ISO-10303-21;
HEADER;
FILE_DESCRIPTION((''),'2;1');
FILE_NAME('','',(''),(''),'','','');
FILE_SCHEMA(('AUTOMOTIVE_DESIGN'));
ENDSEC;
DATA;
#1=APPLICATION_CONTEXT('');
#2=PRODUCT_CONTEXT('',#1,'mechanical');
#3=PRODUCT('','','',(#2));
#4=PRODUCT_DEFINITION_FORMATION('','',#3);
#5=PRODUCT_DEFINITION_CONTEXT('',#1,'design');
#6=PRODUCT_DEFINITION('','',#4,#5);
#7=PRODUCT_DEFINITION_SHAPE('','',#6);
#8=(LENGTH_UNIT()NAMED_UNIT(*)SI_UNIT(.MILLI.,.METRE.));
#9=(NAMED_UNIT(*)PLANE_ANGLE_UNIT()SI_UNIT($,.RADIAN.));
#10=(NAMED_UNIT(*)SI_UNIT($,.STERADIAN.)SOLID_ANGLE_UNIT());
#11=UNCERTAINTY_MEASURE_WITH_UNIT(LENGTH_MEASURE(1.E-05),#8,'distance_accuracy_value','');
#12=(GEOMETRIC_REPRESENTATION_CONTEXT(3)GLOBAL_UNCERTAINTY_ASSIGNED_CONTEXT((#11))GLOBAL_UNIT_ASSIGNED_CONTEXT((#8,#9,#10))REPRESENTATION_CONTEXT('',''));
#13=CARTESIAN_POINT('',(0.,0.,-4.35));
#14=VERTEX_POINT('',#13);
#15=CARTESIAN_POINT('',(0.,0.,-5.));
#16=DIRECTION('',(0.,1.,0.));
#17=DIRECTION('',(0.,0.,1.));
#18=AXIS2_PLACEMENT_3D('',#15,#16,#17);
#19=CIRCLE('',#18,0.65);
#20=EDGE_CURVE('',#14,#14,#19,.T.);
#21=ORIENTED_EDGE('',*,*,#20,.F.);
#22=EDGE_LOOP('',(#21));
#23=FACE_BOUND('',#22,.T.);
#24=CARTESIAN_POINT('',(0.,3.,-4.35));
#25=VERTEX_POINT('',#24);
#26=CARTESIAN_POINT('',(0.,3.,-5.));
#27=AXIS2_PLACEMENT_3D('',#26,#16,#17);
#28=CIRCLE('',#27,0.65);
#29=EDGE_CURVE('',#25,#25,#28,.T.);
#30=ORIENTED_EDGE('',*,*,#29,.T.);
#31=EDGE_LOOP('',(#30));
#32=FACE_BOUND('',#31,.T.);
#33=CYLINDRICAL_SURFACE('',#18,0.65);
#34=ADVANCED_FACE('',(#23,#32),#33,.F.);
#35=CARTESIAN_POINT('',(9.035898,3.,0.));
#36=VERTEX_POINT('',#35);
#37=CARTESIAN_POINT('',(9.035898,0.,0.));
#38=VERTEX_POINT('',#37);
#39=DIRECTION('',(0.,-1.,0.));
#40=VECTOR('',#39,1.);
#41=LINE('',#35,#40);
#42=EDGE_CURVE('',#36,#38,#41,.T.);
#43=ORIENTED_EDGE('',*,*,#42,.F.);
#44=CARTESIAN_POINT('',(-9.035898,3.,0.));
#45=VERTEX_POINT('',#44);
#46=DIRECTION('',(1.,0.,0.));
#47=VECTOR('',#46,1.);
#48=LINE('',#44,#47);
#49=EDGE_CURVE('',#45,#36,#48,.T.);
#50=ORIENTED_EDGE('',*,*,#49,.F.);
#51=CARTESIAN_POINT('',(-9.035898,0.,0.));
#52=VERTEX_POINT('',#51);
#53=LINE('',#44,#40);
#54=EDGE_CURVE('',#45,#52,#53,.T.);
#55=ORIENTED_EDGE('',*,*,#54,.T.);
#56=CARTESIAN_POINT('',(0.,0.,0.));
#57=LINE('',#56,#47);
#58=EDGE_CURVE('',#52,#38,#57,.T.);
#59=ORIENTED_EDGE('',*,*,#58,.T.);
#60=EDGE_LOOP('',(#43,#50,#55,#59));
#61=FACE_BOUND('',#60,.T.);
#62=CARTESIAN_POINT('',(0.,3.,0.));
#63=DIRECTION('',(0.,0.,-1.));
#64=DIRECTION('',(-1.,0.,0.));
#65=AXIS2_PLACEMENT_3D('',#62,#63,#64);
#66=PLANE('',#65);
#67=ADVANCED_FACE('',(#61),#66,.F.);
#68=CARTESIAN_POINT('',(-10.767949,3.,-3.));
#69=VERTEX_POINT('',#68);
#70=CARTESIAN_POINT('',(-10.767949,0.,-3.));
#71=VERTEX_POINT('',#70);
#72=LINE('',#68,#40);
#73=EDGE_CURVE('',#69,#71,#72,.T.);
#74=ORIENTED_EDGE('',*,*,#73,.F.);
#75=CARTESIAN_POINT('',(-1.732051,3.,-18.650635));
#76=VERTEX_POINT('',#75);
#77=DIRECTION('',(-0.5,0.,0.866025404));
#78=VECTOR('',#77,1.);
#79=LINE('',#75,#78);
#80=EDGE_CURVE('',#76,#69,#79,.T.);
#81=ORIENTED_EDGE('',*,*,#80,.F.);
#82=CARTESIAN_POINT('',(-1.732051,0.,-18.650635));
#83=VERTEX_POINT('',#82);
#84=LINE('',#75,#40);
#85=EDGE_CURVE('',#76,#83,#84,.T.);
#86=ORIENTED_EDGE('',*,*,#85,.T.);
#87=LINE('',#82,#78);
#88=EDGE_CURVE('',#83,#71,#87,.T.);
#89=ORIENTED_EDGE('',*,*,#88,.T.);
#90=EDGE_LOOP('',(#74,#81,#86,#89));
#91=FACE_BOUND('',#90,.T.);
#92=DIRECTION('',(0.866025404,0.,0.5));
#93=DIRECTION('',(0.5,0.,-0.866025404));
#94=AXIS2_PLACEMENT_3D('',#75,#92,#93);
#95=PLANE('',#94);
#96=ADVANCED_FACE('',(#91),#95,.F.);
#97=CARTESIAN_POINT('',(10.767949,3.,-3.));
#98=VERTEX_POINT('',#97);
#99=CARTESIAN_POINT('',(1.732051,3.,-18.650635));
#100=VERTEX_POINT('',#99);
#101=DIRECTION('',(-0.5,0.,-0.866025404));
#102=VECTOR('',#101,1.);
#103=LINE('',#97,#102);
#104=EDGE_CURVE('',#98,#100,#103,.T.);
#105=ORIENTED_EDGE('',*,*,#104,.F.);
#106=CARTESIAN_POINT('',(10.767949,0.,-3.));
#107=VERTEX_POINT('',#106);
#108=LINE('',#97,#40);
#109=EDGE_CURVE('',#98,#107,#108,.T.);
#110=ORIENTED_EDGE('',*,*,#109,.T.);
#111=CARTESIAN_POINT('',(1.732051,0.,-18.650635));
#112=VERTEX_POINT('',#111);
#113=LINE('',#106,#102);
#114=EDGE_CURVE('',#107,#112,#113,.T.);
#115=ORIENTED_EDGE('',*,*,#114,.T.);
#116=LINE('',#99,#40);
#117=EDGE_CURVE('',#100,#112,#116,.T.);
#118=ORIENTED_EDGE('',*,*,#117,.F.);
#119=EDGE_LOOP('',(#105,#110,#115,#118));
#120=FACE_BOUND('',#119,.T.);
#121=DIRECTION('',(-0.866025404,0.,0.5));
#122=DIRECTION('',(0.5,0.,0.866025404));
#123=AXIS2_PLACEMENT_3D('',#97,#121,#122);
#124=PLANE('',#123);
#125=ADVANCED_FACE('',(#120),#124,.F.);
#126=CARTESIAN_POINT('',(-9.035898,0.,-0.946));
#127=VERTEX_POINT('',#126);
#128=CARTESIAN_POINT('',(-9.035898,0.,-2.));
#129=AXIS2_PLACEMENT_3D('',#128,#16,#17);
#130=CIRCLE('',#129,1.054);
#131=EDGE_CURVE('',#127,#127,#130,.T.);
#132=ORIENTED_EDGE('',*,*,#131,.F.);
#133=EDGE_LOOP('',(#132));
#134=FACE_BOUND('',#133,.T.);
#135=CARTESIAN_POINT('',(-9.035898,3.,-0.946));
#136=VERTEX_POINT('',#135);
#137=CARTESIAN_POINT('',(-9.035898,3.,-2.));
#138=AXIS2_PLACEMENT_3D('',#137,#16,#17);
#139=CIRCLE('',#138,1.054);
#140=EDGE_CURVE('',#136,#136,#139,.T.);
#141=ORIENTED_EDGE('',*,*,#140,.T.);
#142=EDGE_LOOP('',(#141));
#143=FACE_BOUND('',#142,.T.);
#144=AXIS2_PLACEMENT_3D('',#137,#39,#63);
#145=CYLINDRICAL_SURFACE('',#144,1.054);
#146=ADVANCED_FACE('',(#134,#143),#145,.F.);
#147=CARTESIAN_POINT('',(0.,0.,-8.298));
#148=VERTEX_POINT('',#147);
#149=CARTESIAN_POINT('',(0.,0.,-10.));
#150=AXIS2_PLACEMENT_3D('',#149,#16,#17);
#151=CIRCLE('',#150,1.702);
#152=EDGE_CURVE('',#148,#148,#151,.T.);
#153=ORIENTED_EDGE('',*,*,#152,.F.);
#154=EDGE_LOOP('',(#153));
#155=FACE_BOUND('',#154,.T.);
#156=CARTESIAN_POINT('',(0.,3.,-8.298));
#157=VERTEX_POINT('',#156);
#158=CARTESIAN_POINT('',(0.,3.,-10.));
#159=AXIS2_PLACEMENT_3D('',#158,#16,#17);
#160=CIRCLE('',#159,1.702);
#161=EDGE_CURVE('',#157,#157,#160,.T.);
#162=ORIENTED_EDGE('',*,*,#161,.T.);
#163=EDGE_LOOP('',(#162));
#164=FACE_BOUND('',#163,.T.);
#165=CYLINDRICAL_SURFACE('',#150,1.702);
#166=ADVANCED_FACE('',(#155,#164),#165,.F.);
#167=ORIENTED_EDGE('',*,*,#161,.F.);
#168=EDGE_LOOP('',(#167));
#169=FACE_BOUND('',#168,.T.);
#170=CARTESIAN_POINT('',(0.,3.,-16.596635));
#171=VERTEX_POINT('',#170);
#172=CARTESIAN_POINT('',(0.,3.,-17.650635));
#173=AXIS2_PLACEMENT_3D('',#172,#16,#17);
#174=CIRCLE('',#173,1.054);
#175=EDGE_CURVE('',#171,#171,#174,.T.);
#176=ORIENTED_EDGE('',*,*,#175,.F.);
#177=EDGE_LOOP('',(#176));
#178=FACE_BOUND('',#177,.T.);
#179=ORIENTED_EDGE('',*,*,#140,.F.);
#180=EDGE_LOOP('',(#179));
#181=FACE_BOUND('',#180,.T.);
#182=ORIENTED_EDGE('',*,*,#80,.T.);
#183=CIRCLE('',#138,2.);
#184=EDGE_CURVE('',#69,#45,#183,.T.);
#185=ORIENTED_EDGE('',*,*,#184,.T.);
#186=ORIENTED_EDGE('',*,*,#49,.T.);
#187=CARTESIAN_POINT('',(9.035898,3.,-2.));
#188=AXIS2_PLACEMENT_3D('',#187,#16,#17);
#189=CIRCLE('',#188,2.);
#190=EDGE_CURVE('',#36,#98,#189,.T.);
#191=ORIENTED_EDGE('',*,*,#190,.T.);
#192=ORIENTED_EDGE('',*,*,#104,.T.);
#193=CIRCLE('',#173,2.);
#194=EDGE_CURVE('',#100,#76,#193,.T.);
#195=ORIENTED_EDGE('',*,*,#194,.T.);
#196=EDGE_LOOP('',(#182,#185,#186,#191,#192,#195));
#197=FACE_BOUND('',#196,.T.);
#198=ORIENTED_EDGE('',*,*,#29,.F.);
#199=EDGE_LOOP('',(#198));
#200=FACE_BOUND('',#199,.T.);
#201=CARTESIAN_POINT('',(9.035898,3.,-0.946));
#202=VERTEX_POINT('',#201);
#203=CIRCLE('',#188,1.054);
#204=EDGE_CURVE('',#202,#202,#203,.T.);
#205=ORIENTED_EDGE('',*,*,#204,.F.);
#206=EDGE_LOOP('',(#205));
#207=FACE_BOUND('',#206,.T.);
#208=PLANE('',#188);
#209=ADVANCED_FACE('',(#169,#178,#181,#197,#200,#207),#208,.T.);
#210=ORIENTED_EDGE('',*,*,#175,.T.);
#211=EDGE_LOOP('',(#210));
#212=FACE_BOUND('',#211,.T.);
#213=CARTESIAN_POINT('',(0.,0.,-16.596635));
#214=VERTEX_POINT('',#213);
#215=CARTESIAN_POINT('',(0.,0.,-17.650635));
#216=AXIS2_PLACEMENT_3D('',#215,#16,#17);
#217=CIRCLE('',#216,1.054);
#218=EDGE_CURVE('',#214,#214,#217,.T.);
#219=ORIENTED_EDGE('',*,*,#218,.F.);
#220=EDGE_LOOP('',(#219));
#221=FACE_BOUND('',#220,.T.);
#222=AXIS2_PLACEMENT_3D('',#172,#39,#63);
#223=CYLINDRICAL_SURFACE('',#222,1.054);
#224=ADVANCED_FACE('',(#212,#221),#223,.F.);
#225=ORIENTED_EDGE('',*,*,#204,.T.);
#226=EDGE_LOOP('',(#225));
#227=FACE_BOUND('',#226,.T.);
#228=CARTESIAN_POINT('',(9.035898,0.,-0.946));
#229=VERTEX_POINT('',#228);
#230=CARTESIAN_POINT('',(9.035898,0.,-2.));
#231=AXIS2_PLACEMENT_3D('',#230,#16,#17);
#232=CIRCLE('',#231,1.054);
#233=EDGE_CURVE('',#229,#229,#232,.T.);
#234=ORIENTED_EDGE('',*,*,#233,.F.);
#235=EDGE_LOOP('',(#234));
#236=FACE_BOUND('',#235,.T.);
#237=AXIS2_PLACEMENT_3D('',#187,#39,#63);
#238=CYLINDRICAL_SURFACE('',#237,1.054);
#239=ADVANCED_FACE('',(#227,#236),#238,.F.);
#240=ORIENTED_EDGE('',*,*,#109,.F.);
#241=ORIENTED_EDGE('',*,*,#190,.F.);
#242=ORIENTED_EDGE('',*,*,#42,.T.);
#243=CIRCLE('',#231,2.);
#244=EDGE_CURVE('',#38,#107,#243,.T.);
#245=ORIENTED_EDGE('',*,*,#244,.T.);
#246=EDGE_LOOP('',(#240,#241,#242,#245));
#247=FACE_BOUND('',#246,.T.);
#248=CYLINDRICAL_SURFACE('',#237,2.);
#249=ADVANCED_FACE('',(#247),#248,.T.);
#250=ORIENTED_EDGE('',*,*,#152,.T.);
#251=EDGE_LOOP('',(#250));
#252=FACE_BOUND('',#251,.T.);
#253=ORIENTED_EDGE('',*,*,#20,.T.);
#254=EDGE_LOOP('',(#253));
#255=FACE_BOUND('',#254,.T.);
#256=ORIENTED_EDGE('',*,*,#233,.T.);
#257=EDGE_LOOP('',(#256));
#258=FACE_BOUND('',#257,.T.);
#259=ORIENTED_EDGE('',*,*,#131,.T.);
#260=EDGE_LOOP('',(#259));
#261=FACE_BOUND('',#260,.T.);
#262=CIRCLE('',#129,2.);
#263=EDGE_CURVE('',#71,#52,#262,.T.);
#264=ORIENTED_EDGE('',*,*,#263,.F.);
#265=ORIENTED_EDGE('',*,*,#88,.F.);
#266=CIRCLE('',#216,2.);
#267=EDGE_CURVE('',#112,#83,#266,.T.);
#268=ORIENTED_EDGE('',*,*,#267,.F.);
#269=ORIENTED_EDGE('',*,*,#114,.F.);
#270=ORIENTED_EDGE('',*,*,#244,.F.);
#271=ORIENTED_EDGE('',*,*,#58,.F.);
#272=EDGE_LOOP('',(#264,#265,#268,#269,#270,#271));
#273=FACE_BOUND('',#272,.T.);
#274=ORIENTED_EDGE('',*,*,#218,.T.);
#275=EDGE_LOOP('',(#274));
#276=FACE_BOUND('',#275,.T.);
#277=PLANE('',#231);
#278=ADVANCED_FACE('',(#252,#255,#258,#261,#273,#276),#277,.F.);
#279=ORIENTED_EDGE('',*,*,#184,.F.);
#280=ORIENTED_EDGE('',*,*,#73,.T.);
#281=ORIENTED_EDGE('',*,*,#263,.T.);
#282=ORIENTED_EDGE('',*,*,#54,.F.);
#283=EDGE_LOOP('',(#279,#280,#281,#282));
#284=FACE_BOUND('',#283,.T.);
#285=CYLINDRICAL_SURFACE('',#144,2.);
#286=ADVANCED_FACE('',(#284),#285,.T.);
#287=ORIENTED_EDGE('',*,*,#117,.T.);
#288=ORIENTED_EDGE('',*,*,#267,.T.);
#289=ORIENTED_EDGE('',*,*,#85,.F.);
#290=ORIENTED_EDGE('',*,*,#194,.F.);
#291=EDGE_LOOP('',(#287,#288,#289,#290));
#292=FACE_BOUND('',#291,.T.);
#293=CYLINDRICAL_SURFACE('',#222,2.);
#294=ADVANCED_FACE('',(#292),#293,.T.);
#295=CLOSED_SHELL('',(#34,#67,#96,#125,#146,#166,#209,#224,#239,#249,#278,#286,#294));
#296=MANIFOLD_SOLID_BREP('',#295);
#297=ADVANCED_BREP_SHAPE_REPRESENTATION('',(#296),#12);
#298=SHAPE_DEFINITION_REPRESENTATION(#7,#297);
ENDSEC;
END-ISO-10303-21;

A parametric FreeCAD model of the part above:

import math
import FreeCAD as App
import Part
import Sketcher

V = App.Vector
Q = App.Units.Quantity

doc = App.newDocument("Part")
body = doc.addObject("PartDesign::Body", "Body")

# Sketch on XZ plane
sketch1 = doc.addObject("Sketcher::SketchObject", "Sketch")
body.addObject(sketch1)
sketch1.AttachmentSupport = (doc.XZ_Plane, [""])
sketch1.MapMode = "FlatFace"
sketch1.addGeometry([
    Part.ArcOfCircle(Part.Circle(V(9, -2, 0), V(0, 0, 1), 2), math.radians(-30), math.radians(90)),  # 0
    Part.LineSegment(V(10.8, -3, 0), V(1.7, -18.7, 0)),  # 1
    Part.ArcOfCircle(Part.Circle(V(0, -17.7, 0), V(0, 0, 1), 2), math.radians(-150), math.radians(-30)),  # 2
    Part.LineSegment(V(-1.7, -18.7, 0), V(-10.8, -3, 0)),  # 3
    Part.ArcOfCircle(Part.Circle(V(-9, -2, 0), V(0, 0, 1), 2), math.radians(90), math.radians(210)),  # 4
    Part.LineSegment(V(-9, 0, 0), V(9, 0, 0)),  # 5
    Part.Circle(V(-9, -2, 0), V(0, 0, 1), 1.1),  # 6
    Part.Circle(V(9, -2, 0), V(0, 0, 1), 1.1),  # 7
    Part.Circle(V(0, -17.7, 0), V(0, 0, 1), 1.1),  # 8
], False)
sketch1.addConstraint([
    Sketcher.Constraint("Tangent", 0, 1, 1, 1),
    Sketcher.Constraint("Tangent", 1, 2, 2, 2),
    Sketcher.Constraint("Tangent", 2, 1, 3, 1),
    Sketcher.Constraint("Tangent", 3, 2, 4, 2),
    Sketcher.Constraint("Tangent", 4, 1, 5, 1),
    Sketcher.Constraint("Tangent", 5, 2, 0, 2),
    Sketcher.Constraint("Horizontal", 5),
    Sketcher.Constraint("Coincident", 6, 3, 4, 3),
    Sketcher.Constraint("Coincident", 7, 3, 0, 3),
    Sketcher.Constraint("Coincident", 8, 3, 2, 3),
    Sketcher.Constraint("Equal", 0, 2),
    Sketcher.Constraint("Equal", 2, 4),
    Sketcher.Constraint("Equal", 6, 7),
    Sketcher.Constraint("Equal", 7, 8),
    Sketcher.Constraint("Symmetric", 4, 1, 5, 2, -1, 1),
    Sketcher.Constraint("PointOnObject", 2, 3, -2),
    Sketcher.Constraint("Radius", 0, 2.0),
    Sketcher.Constraint("Angle", 1, Q("-120 deg")),
    Sketcher.Constraint("Diameter", 6, 2.108),
    Sketcher.Constraint("DistanceX", -1, 1, 0, 3, 9.035898),
])
pad1 = doc.addObject("PartDesign::Pad", "Pad")
body.addObject(pad1)
pad1.Profile = sketch1
pad1.Length = 3
pad1.Reversed = True

# Sketch on XZ plane
sketch2 = doc.addObject("Sketcher::SketchObject", "Sketch001")
body.addObject(sketch2)
sketch2.AttachmentSupport = (doc.XZ_Plane, [""])
sketch2.MapMode = "FlatFace"
sketch2.AttachmentOffset = App.Placement(V(0, 0, -3), App.Rotation())
sketch2.addGeometry([
    Part.Circle(V(0, -10, 0), V(0, 0, 1), 1.7),
    Part.Circle(V(0, -5, 0), V(0, 0, 1), 0.7),
], False)
sketch2.addConstraint([
    Sketcher.Constraint("PointOnObject", 0, 3, -2),
    Sketcher.Constraint("PointOnObject", 1, 3, -2),
    Sketcher.Constraint("Diameter", 1, 1.3),
    Sketcher.Constraint("Diameter", 0, 3.404),
    Sketcher.Constraint("DistanceY", 0, 3, -1, 1, 10.0),
    Sketcher.Constraint("DistanceY", 1, 3, -1, 1, 5.0),
])
pocket1 = doc.addObject("PartDesign::Pocket", "Pocket")
body.addObject(pocket1)
pocket1.Profile = sketch2
pocket1.Type = "ThroughAll"
pocket1.Reversed = True

doc.recompute()
